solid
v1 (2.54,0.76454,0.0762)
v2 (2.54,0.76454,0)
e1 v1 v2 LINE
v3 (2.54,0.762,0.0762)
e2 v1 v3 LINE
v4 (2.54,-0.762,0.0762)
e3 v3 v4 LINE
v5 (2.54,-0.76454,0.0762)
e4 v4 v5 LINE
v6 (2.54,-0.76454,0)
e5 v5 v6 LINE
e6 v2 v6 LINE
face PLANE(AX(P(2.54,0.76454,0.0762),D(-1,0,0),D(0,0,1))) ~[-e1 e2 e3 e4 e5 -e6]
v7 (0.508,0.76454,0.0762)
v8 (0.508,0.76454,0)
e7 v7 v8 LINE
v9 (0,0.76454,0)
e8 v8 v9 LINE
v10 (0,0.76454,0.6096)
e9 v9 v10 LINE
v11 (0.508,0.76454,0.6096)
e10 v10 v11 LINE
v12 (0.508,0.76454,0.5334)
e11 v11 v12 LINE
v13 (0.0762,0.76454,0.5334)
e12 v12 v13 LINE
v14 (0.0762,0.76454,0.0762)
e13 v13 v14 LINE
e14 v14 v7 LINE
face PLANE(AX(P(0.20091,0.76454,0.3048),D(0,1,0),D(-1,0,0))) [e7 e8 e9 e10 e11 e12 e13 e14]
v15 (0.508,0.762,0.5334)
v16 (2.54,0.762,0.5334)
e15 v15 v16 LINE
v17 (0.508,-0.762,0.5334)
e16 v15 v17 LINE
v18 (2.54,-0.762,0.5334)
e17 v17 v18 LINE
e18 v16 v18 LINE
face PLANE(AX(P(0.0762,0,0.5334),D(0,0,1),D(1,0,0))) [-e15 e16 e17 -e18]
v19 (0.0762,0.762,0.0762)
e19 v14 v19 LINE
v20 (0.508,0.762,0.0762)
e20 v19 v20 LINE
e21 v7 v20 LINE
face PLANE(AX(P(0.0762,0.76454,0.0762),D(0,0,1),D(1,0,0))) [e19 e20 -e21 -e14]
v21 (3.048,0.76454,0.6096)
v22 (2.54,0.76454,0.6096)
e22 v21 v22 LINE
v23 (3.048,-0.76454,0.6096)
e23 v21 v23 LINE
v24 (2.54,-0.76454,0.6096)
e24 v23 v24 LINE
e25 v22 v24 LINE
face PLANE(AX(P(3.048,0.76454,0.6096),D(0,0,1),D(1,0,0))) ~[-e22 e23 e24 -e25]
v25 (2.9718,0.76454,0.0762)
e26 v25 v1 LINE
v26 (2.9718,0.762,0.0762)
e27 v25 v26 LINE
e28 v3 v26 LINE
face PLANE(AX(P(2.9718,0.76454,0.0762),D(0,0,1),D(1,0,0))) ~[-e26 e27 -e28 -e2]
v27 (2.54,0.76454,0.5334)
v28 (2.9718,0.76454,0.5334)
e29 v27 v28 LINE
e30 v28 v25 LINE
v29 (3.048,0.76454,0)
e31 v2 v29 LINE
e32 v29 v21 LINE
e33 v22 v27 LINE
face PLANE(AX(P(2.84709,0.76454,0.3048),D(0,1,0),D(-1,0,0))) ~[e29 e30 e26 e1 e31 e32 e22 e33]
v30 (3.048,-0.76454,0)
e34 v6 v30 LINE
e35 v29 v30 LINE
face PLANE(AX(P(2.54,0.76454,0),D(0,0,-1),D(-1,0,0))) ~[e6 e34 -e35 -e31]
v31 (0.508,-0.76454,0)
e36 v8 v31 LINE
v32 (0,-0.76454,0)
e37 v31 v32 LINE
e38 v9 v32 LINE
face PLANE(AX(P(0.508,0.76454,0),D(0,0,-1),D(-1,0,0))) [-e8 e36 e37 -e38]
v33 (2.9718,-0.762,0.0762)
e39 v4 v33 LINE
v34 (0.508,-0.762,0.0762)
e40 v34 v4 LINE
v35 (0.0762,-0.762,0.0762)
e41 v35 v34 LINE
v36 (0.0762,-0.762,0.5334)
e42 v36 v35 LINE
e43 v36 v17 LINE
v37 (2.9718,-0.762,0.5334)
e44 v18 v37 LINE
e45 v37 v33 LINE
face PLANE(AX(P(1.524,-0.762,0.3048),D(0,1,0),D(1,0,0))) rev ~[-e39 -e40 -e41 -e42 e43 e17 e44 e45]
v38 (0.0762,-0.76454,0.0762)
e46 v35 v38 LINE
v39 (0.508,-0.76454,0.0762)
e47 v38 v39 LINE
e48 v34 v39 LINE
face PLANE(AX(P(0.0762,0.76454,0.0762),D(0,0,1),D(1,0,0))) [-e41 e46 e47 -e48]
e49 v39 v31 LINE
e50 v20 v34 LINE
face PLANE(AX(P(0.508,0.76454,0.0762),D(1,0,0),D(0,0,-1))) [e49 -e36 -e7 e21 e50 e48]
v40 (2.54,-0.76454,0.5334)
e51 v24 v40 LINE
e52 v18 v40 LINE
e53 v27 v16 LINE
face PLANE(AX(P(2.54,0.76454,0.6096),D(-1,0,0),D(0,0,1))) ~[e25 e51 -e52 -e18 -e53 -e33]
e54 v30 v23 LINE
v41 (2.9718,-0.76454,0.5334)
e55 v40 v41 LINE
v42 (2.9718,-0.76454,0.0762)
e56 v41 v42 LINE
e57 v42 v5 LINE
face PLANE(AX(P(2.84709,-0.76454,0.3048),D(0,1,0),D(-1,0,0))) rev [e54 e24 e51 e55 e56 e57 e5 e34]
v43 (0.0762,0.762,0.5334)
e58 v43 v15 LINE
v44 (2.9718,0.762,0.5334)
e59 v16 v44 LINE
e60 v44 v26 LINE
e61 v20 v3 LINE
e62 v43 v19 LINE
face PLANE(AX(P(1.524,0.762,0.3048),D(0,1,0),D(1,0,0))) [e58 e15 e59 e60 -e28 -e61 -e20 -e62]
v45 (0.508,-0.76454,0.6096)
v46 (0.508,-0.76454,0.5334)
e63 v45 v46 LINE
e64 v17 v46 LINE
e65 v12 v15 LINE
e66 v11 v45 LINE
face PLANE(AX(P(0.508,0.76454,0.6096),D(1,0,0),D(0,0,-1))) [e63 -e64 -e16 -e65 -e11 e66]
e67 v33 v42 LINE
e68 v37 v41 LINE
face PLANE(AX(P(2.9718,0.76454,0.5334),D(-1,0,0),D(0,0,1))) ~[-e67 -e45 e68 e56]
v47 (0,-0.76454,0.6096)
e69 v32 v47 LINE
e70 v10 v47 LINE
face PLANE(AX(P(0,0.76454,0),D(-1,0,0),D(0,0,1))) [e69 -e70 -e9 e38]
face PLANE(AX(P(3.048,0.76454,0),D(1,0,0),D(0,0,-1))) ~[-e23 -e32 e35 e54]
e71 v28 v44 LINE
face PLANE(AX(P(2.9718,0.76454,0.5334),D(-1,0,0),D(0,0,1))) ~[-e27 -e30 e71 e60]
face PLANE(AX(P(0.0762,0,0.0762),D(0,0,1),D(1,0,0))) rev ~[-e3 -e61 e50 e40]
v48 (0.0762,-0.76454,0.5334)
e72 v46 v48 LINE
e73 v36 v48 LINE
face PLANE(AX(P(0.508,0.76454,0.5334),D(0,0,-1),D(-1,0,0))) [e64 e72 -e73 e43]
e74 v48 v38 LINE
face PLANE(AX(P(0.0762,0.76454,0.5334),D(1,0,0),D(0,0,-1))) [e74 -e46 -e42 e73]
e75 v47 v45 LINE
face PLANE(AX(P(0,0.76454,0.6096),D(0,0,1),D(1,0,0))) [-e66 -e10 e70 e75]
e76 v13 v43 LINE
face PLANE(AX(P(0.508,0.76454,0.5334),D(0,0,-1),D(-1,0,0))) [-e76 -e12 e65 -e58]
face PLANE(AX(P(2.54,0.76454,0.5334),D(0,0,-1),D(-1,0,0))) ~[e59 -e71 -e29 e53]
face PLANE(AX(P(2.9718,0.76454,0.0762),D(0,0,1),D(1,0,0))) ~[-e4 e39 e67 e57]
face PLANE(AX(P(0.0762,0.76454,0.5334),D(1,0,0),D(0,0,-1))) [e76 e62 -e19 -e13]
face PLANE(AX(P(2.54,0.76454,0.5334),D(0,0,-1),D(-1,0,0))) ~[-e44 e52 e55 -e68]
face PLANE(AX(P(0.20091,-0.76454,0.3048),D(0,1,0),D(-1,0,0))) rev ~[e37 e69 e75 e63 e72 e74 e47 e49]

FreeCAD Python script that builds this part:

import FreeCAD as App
import Part
import Sketcher
Q = App.Units.Quantity

doc = App.newDocument("Part")
body = doc.addObject("PartDesign::Body", "Body")

# Sketch on XZ plane
sketch1 = body.newObject("Sketcher::SketchObject", "Sketch")
sketch1.AttachmentSupport = (doc.getObject("XZ_Plane"), [""])
sketch1.MapMode = "FlatFace"
sketch1.addGeometry([
    Part.LineSegment(App.Vector(0.08, 0.08, 0), App.Vector(0.08, 0.53, 0)),
    Part.LineSegment(App.Vector(0.08, 0.53, 0), App.Vector(2.97, 0.53, 0)),
    Part.LineSegment(App.Vector(2.97, 0.53, 0), App.Vector(2.97, 0.08, 0)),
    Part.LineSegment(App.Vector(2.97, 0.08, 0), App.Vector(0.08, 0.08, 0)),
], False)
sketch1.addConstraint([
    Sketcher.Constraint("Coincident", 0, 2, 1, 1),
    Sketcher.Constraint("Coincident", 1, 2, 2, 1),
    Sketcher.Constraint("Coincident", 2, 2, 3, 1),
    Sketcher.Constraint("Coincident", 3, 2, 0, 1),
    Sketcher.Constraint("Vertical", 0),
    Sketcher.Constraint("Horizontal", 1),
    Sketcher.Constraint("Vertical", 2),
    Sketcher.Constraint("Horizontal", 3),
    Sketcher.Constraint("DistanceX", 1, 1, 1, 2, Q("0.114 in")),
    Sketcher.Constraint("DistanceY", 0, 1, 0, 2, Q("0.018 in")),
    Sketcher.Constraint("DistanceX", -1, 1, 0, 2, Q("0.003 in")),
    Sketcher.Constraint("DistanceY", -1, 1, 0, 2, Q("0.021 in")),
])
pad1 = body.newObject("PartDesign::Pad", "Pad")
pad1.Profile = sketch1
pad1.Length = Q("0.06 in")
pad1.Midplane = True

# Sketch on XZ plane
sketch2 = body.newObject("Sketcher::SketchObject", "Sketch001")
sketch2.AttachmentSupport = (doc.getObject("XZ_Plane"), [""])
sketch2.MapMode = "FlatFace"
sketch2.AttachmentOffset = App.Placement(App.Vector(0, 0, -0.0301 * 25.4), App.Rotation())
sketch2.addGeometry([
    Part.LineSegment(App.Vector(0.51, 0.61, 0), App.Vector(0.51, 0.53, 0)),  # 0
    Part.LineSegment(App.Vector(0.51, 0.53, 0), App.Vector(0.08, 0.53, 0)),  # 1
    Part.LineSegment(App.Vector(0.08, 0.53, 0), App.Vector(0.08, 0.08, 0)),  # 2
    Part.LineSegment(App.Vector(0.08, 0.08, 0), App.Vector(0.51, 0.08, 0)),  # 3
    Part.LineSegment(App.Vector(0.51, 0.08, 0), App.Vector(0.51, 0, 0)),  # 4
    Part.LineSegment(App.Vector(0.51, 0, 0), App.Vector(0, 0, 0)),  # 5
    Part.LineSegment(App.Vector(0, 0, 0), App.Vector(0, 0.61, 0)),  # 6
    Part.LineSegment(App.Vector(0, 0.61, 0), App.Vector(0.51, 0.61, 0)),  # 7
], False)
sketch2.addConstraint([
    Sketcher.Constraint("Coincident", 0, 2, 1, 1),
    Sketcher.Constraint("Coincident", 1, 2, 2, 1),
    Sketcher.Constraint("Coincident", 2, 2, 3, 1),
    Sketcher.Constraint("Coincident", 3, 2, 4, 1),
    Sketcher.Constraint("Coincident", 4, 2, 5, 1),
    Sketcher.Constraint("Coincident", 5, 2, 6, 1),
    Sketcher.Constraint("Coincident", 6, 2, 7, 1),
    Sketcher.Constraint("Coincident", 7, 2, 0, 1),
    Sketcher.Constraint("Vertical", 0),
    Sketcher.Constraint("Horizontal", 1),
    Sketcher.Constraint("Vertical", 2),
    Sketcher.Constraint("Horizontal", 3),
    Sketcher.Constraint("Vertical", 4),
    Sketcher.Constraint("Horizontal", 5),
    Sketcher.Constraint("Vertical", 6),
    Sketcher.Constraint("Horizontal", 7),
    Sketcher.Constraint("Coincident", 5, 2, -1, 1),
    Sketcher.Constraint("Vertical", 0, 2, 3, 2),
    Sketcher.Constraint("Equal", 0, 4),
    Sketcher.Constraint("DistanceX", 5, 2, 5, 1, Q("0.02 in")),
    Sketcher.Constraint("DistanceX", 1, 2, 1, 1, Q("0.017 in")),
    Sketcher.Constraint("DistanceY", 0, 2, 0, 1, Q("0.003 in")),
    Sketcher.Constraint("DistanceY", 2, 2, 2, 1, Q("0.018 in")),
])
pad2 = body.newObject("PartDesign::Pad", "Pad001")
pad2.Profile = sketch2
pad2.Length = Q("0.0602 in")
doc.recompute()

datumplane = body.newObject("PartDesign::Plane", "DatumPlane")
datumplane.AttachmentSupport = (doc.getObject("YZ_Plane"), [""])
datumplane.MapMode = "FlatFace"
datumplane.AttachmentOffset = App.Placement(App.Vector(0, 0, 0.06 * 25.4), App.Rotation())
mirrored = body.newObject("PartDesign::Mirrored", "Mirrored")
mirrored.Originals = [pad2]
mirrored.MirrorPlane = (datumplane, [""])
body.Tip = mirrored

doc.recompute()
